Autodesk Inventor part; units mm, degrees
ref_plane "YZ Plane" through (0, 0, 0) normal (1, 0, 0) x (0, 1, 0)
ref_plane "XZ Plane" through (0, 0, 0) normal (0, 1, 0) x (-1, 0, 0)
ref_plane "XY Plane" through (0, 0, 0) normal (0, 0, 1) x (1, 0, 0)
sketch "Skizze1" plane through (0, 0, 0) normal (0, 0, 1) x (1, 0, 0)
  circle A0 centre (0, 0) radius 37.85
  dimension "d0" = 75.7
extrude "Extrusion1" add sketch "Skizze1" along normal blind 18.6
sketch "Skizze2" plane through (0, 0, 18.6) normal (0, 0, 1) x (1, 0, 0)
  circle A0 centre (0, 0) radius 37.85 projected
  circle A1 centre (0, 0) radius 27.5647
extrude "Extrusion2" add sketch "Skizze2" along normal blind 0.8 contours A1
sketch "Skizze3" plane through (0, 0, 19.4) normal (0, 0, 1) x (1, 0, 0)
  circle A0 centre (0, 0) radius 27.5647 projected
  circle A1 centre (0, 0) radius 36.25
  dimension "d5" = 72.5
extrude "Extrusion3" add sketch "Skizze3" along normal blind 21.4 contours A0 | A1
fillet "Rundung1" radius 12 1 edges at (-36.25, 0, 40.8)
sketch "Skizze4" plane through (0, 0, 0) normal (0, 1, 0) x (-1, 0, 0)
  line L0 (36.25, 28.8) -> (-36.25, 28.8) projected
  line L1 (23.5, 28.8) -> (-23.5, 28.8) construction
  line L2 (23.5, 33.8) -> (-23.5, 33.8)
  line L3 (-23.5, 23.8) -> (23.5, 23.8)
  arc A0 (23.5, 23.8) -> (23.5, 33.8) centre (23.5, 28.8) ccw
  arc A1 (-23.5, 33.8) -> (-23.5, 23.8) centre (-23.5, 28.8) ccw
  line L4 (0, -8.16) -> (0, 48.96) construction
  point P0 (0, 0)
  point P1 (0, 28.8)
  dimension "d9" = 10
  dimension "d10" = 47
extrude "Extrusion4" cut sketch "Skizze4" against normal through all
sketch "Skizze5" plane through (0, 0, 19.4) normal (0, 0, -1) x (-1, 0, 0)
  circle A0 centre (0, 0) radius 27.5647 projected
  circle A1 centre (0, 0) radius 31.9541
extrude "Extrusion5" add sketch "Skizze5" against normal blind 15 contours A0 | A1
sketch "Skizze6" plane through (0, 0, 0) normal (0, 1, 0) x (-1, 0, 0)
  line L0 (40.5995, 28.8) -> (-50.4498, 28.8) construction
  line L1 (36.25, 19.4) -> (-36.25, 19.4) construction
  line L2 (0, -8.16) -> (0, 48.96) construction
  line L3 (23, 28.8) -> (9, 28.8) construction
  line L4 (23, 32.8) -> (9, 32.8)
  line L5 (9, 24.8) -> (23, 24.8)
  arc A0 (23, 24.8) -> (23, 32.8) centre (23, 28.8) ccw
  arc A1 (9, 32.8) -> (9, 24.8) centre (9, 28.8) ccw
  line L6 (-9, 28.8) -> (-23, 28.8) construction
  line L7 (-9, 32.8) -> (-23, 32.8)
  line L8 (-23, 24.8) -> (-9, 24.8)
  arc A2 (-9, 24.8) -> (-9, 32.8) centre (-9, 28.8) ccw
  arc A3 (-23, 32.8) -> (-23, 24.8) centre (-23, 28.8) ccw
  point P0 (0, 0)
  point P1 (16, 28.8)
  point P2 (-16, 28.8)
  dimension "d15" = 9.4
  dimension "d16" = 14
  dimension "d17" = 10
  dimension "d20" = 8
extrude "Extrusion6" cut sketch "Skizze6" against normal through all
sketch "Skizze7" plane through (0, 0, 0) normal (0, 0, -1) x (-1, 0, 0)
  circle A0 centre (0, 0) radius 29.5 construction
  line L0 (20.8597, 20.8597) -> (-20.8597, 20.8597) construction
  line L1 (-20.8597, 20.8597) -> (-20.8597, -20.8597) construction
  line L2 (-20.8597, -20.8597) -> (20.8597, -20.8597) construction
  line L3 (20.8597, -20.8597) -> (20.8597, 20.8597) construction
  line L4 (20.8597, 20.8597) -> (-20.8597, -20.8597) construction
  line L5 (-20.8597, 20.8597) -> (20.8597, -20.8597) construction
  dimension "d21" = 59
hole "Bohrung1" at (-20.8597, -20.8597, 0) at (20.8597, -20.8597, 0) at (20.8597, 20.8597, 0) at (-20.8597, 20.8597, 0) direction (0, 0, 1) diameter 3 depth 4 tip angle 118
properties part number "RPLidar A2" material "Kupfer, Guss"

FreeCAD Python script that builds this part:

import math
import FreeCAD as App
import Part
import Sketcher


def edges_at(feature, points):
    """Names of the edges that pass closest to the given points."""
    edges = feature.Shape.Edges
    near = lambda p: min(range(len(edges)), key=lambda i: edges[i].distToShape(Part.Vertex(*p))[0])
    return sorted({f"Edge{near(p) + 1}" for p in points})

doc = App.newDocument("Part")
body = doc.addObject("PartDesign::Body", "Body")

sketch1 = body.newObject("Sketcher::SketchObject", "Sketch")
sketch1.AttachmentSupport = (doc.getObject("XY_Plane"), [""])
sketch1.MapMode = "FlatFace"
sketch1.addGeometry(Part.Circle(App.Vector(0, 0, 0), App.Vector(0, 0, 1), 38), False)
sketch1.addConstraint(Sketcher.Constraint("Coincident", 0, 3, -1, 1))
sketch1.addConstraint(Sketcher.Constraint("Diameter", 0, 75.7))
pad1 = body.newObject("PartDesign::Pad", "Pad")
pad1.Profile = sketch1
pad1.Length = 18.6

sketch2 = body.newObject("Sketcher::SketchObject", "Sketch001")
sketch2.AttachmentSupport = (doc.getObject("XY_Plane"), [""])
sketch2.MapMode = "FlatFace"
sketch2.AttachmentOffset = App.Placement(App.Vector(0, 0, 18.6), App.Rotation())
sketch2.addGeometry(Part.Circle(App.Vector(0, 0, 0), App.Vector(0, 0, 1), 28), False)
sketch2.addConstraint(Sketcher.Constraint("Coincident", 0, 3, -1, 1))
sketch2.addConstraint(Sketcher.Constraint("Diameter", 0, 55.1294))
pad2 = body.newObject("PartDesign::Pad", "Pad001")
pad2.Profile = sketch2
pad2.Length = 0.8

sketch3 = body.newObject("Sketcher::SketchObject", "Sketch002")
sketch3.AttachmentSupport = (doc.getObject("XY_Plane"), [""])
sketch3.MapMode = "FlatFace"
sketch3.AttachmentOffset = App.Placement(App.Vector(0, 0, 19.4), App.Rotation())
sketch3.addGeometry(Part.Circle(App.Vector(0, 0, 0), App.Vector(0, 0, 1), 36), False)
sketch3.addConstraint(Sketcher.Constraint("Coincident", 0, 3, -1, 1))
sketch3.addConstraint(Sketcher.Constraint("Diameter", 0, 72.5))
pad3 = body.newObject("PartDesign::Pad", "Pad002")
pad3.Profile = sketch3
pad3.Length = 21.4
doc.recompute()

fillet = body.newObject("PartDesign::Fillet", "Fillet")
fillet.Base = (pad3, edges_at(pad3, [(-36.25, 0, 40.8)]))
fillet.Radius = 12

sketch4 = body.newObject("Sketcher::SketchObject", "Sketch003")
sketch4.AttachmentSupport = (doc.getObject("XZ_Plane"), [""])
sketch4.MapMode = "FlatFace"
sketch4.addGeometry(Part.ArcOfCircle(Part.Circle(App.Vector(-23.5, 28.8, 0), App.Vector(0, 0, 1), 5), math.radians(90), math.radians(270)), False)
sketch4.addGeometry(Part.LineSegment(App.Vector(-23.5, 33.8, 0), App.Vector(23.5, 33.8, 0)), False)
sketch4.addGeometry(Part.ArcOfCircle(Part.Circle(App.Vector(23.5, 28.8, 0), App.Vector(0, 0, 1), 5), math.radians(-90), math.radians(90)), False)
sketch4.addGeometry(Part.LineSegment(App.Vector(23.5, 23.8, 0), App.Vector(-23.5, 23.8, 0)), False)
sketch4.addConstraint(Sketcher.Constraint("Tangent", 0, 1, 1, 1))
sketch4.addConstraint(Sketcher.Constraint("Tangent", 1, 2, 2, 2))
sketch4.addConstraint(Sketcher.Constraint("Tangent", 2, 1, 3, 1))
sketch4.addConstraint(Sketcher.Constraint("Tangent", 3, 2, 0, 2))
sketch4.addConstraint(Sketcher.Constraint("Horizontal", 1))
sketch4.addConstraint(Sketcher.Constraint("Horizontal", 3))
sketch4.addConstraint(Sketcher.Constraint("Radius", 0, 5.0))
sketch4.addConstraint(Sketcher.Constraint("DistanceX", 1, 1, 1, 2, 47.0))
sketch4.addConstraint(Sketcher.Constraint("DistanceX", 0, 3, -1, 1, 23.5))
sketch4.addConstraint(Sketcher.Constraint("DistanceY", -1, 1, 0, 3, 28.8))
pocket1 = body.newObject("PartDesign::Pocket", "Pocket")
pocket1.Profile = sketch4
pocket1.Type = "ThroughAll"
pocket1.Reversed = True

sketch5 = body.newObject("Sketcher::SketchObject", "Sketch004")
sketch5.AttachmentSupport = (doc.getObject("XY_Plane"), [""])
sketch5.MapMode = "FlatFace"
sketch5.AttachmentOffset = App.Placement(App.Vector(0, 0, 19.4), App.Rotation())
sketch5.addGeometry(Part.Circle(App.Vector(0, 0, 0), App.Vector(0, 0, 1), 32), False)
sketch5.addConstraint(Sketcher.Constraint("Coincident", 0, 3, -1, 1))
sketch5.addConstraint(Sketcher.Constraint("Diameter", 0, 63.9082))
pad4 = body.newObject("PartDesign::Pad", "Pad003")
pad4.Profile = sketch5
pad4.Length = 15

sketch6 = body.newObject("Sketcher::SketchObject", "Sketch005")
sketch6.AttachmentSupport = (doc.getObject("XZ_Plane"), [""])
sketch6.MapMode = "FlatFace"
sketch6.addGeometry(Part.ArcOfCircle(Part.Circle(App.Vector(-23, 28.8, 0), App.Vector(0, 0, 1), 4), math.radians(90), math.radians(270)), False)
sketch6.addGeometry(Part.LineSegment(App.Vector(-23, 32.8, 0), App.Vector(-9, 32.8, 0)), False)
sketch6.addGeometry(Part.ArcOfCircle(Part.Circle(App.Vector(-9, 28.8, 0), App.Vector(0, 0, 1), 4), math.radians(-90), math.radians(90)), False)
sketch6.addGeometry(Part.LineSegment(App.Vector(-9, 24.8, 0), App.Vector(-23, 24.8, 0)), False)
sketch6.addGeometry(Part.ArcOfCircle(Part.Circle(App.Vector(9, 28.8, 0), App.Vector(0, 0, 1), 4), math.radians(90), math.radians(270)), False)
sketch6.addGeometry(Part.LineSegment(App.Vector(9, 32.8, 0), App.Vector(23, 32.8, 0)), False)
sketch6.addGeometry(Part.ArcOfCircle(Part.Circle(App.Vector(23, 28.8, 0), App.Vector(0, 0, 1), 4), math.radians(-90), math.radians(90)), False)
sketch6.addGeometry(Part.LineSegment(App.Vector(23, 24.8, 0), App.Vector(9, 24.8, 0)), False)
sketch6.addConstraint(Sketcher.Constraint("Tangent", 0, 1, 1, 1))
sketch6.addConstraint(Sketcher.Constraint("Tangent", 1, 2, 2, 2))
sketch6.addConstraint(Sketcher.Constraint("Tangent", 2, 1, 3, 1))
sketch6.addConstraint(Sketcher.Constraint("Tangent", 3, 2, 0, 2))
sketch6.addConstraint(Sketcher.Constraint("Tangent", 4, 1, 5, 1))
sketch6.addConstraint(Sketcher.Constraint("Tangent", 5, 2, 6, 2))
sketch6.addConstraint(Sketcher.Constraint("Tangent", 6, 1, 7, 1))
sketch6.addConstraint(Sketcher.Constraint("Tangent", 7, 2, 4, 2))
sketch6.addConstraint(Sketcher.Constraint("Horizontal", 1))
sketch6.addConstraint(Sketcher.Constraint("Horizontal", 3))
sketch6.addConstraint(Sketcher.Constraint("Horizontal", 5))
sketch6.addConstraint(Sketcher.Constraint("Horizontal", 7))
sketch6.addConstraint(Sketcher.Constraint("Equal", 2, 4))
sketch6.addConstraint(Sketcher.Constraint("Symmetric", 2, 3, 4, 3, -2))
sketch6.addConstraint(Sketcher.Constraint("Equal", 3, 5))
sketch6.addConstraint(Sketcher.Constraint("Radius", 0, 4.0))
sketch6.addConstraint(Sketcher.Constraint("DistanceX", 1, 1, 1, 2, 14.0))
sketch6.addConstraint(Sketcher.Constraint("DistanceX", 0, 3, -1, 1, 23.0))
sketch6.addConstraint(Sketcher.Constraint("DistanceY", -1, 1, 0, 3, 28.8))
pocket2 = body.newObject("PartDesign::Pocket", "Pocket001")
pocket2.Profile = sketch6
pocket2.Type = "ThroughAll"
pocket2.Reversed = True

sketch7 = body.newObject("Sketcher::SketchObject", "Sketch006")
sketch7.AttachmentSupport = (doc.getObject("XY_Plane"), [""])
sketch7.MapMode = "FlatFace"
sketch7.addGeometry(Part.Circle(App.Vector(-20.9, -20.9, 0), App.Vector(0, 0, 1), 1.5), False)
sketch7.addGeometry(Part.Circle(App.Vector(20.9, -20.9, 0), App.Vector(0, 0, 1), 1.5), False)
sketch7.addGeometry(Part.Circle(App.Vector(20.9, 20.9, 0), App.Vector(0, 0, 1), 1.5), False)
sketch7.addGeometry(Part.Circle(App.Vector(-20.9, 20.9, 0), App.Vector(0, 0, 1), 1.5), False)
sketch7.addConstraint(Sketcher.Constraint("Equal", 0, 1))
sketch7.addConstraint(Sketcher.Constraint("Equal", 1, 2))
sketch7.addConstraint(Sketcher.Constraint("Equal", 2, 3))
sketch7.addConstraint(Sketcher.Constraint("Symmetric", 0, 3, 2, 3, -1, 1))
sketch7.addConstraint(Sketcher.Constraint("Symmetric", 1, 3, 3, 3, -1, 1))
sketch7.addConstraint(Sketcher.Constraint("Symmetric", 0, 3, 1, 3, -2))
sketch7.addConstraint(Sketcher.Constraint("Diameter", 0, 3.0))
sketch7.addConstraint(Sketcher.Constraint("DistanceX", 0, 3, -1, 1, 20.8597))
sketch7.addConstraint(Sketcher.Constraint("DistanceY", 0, 3, -1, 1, 20.8597))
doc.recompute()
hole = body.newObject("PartDesign::Hole", "Hole")
hole.Profile = sketch7
hole.ThreadType = "None"
hole.Diameter = 3
hole.DepthType = "Dimension"
hole.Depth = 4
hole.DrillPoint = "Angled"
hole.DrillPointAngle = 118
hole.Reversed = True

doc.recompute()
